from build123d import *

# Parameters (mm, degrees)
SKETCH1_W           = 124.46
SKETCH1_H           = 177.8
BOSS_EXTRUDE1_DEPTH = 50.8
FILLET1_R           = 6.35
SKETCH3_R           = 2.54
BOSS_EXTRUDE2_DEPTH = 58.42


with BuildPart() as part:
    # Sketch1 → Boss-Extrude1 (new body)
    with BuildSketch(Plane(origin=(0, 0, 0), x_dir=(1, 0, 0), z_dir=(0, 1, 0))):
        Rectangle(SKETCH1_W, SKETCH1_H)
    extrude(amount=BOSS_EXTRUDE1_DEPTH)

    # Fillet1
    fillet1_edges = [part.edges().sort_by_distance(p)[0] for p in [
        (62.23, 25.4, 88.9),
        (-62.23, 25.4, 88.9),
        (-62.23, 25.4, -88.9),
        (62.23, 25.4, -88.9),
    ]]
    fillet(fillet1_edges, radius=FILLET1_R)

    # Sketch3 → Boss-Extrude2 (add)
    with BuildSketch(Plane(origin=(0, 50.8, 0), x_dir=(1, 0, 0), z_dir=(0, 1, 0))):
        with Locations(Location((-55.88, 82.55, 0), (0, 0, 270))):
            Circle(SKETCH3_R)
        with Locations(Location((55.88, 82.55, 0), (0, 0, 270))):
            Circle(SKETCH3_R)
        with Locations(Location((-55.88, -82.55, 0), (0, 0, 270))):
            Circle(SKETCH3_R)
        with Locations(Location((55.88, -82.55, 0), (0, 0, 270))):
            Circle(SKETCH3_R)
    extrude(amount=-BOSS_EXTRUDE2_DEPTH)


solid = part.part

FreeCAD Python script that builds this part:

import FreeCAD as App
import Part
import Sketcher
from FreeCAD import Vector
Q = App.Units.Quantity


def edges_at(feature, points):
    """Names of the edges that pass closest to the given points."""
    edges = feature.Shape.Edges
    near = lambda p: min(range(len(edges)), key=lambda i: edges[i].distToShape(Part.Vertex(*p))[0])
    return sorted({f"Edge{near(p) + 1}" for p in points})

doc = App.newDocument("Part")
body = doc.addObject("PartDesign::Body", "Body")

# Sketch on XZ plane
sketch1 = body.newObject("Sketcher::SketchObject", "Sketch")
sketch1.AttachmentSupport = (doc.getObject("XZ_Plane"), [""])
sketch1.MapMode = "FlatFace"
sketch1.addGeometry([
    Part.LineSegment(Vector(-62, -89, 0), Vector(-62, 89, 0)),
    Part.LineSegment(Vector(-62, 89, 0), Vector(62, 89, 0)),
    Part.LineSegment(Vector(62, 89, 0), Vector(62, -89, 0)),
    Part.LineSegment(Vector(62, -89, 0), Vector(-62, -89, 0)),
], False)
sketch1.addConstraint([
    Sketcher.Constraint("Coincident", 0, 2, 1, 1),
    Sketcher.Constraint("Coincident", 1, 2, 2, 1),
    Sketcher.Constraint("Coincident", 2, 2, 3, 1),
    Sketcher.Constraint("Coincident", 3, 2, 0, 1),
    Sketcher.Constraint("Vertical", 0),
    Sketcher.Constraint("Horizontal", 1),
    Sketcher.Constraint("Vertical", 2),
    Sketcher.Constraint("Horizontal", 3),
    Sketcher.Constraint("Symmetric", 0, 2, 2, 2, -1, 1),
    Sketcher.Constraint("DistanceY", 0, 1, 0, 2, Q("7 in")),
    Sketcher.Constraint("DistanceX", 1, 1, 1, 2, Q("4.9 in")),
])
pad1 = body.newObject("PartDesign::Pad", "Pad")
pad1.Profile = sketch1
pad1.Length = Q("2 in")
pad1.Reversed = True
doc.recompute()

fillet = body.newObject("PartDesign::Fillet", "Fillet")
fillet.Base = (pad1, edges_at(pad1, [
    (62.23, 25.4, 88.9),
    (-62.23, 25.4, 88.9),
    (-62.23, 25.4, -88.9),
    (62.23, 25.4, -88.9),
]))
fillet.Radius = Q("0.25 in")

# Sketch on XZ plane
sketch2 = body.newObject("Sketcher::SketchObject", "Sketch001")
sketch2.AttachmentSupport = (doc.getObject("XZ_Plane"), [""])
sketch2.MapMode = "FlatFace"
sketch2.AttachmentOffset = App.Placement(Vector(0, 0, -2 * 25.4), App.Rotation())
sketch2.addGeometry([
    Part.Circle(Vector(-55.9, -82.5, 0), Vector(0, 0, 1), 2.5),
    Part.Circle(Vector(55.9, -82.5, 0), Vector(0, 0, 1), 2.5),
    Part.Circle(Vector(-55.9, 82.5, 0), Vector(0, 0, 1), 2.5),
    Part.Circle(Vector(55.9, 82.5, 0), Vector(0, 0, 1), 2.5),
], False)
sketch2.addConstraint([
    Sketcher.Constraint("Equal", 0, 1),
    Sketcher.Constraint("Equal", 1, 2),
    Sketcher.Constraint("Equal", 2, 3),
    Sketcher.Constraint("Symmetric", 1, 3, 2, 3, -1, 1),
    Sketcher.Constraint("Symmetric", 0, 3, 3, 3, -1, 1),
    Sketcher.Constraint("Symmetric", 0, 3, 1, 3, -2),
    Sketcher.Constraint("Diameter", 0, Q("0.2 in")),
    Sketcher.Constraint("DistanceX", 0, 3, -1, 1, Q("2.2 in")),
    Sketcher.Constraint("DistanceY", 0, 3, 2, 3, Q("6.5 in")),
])
pad2 = body.newObject("PartDesign::Pad", "Pad001")
pad2.Profile = sketch2
pad2.Length = Q("2.3 in")

doc.recompute()
